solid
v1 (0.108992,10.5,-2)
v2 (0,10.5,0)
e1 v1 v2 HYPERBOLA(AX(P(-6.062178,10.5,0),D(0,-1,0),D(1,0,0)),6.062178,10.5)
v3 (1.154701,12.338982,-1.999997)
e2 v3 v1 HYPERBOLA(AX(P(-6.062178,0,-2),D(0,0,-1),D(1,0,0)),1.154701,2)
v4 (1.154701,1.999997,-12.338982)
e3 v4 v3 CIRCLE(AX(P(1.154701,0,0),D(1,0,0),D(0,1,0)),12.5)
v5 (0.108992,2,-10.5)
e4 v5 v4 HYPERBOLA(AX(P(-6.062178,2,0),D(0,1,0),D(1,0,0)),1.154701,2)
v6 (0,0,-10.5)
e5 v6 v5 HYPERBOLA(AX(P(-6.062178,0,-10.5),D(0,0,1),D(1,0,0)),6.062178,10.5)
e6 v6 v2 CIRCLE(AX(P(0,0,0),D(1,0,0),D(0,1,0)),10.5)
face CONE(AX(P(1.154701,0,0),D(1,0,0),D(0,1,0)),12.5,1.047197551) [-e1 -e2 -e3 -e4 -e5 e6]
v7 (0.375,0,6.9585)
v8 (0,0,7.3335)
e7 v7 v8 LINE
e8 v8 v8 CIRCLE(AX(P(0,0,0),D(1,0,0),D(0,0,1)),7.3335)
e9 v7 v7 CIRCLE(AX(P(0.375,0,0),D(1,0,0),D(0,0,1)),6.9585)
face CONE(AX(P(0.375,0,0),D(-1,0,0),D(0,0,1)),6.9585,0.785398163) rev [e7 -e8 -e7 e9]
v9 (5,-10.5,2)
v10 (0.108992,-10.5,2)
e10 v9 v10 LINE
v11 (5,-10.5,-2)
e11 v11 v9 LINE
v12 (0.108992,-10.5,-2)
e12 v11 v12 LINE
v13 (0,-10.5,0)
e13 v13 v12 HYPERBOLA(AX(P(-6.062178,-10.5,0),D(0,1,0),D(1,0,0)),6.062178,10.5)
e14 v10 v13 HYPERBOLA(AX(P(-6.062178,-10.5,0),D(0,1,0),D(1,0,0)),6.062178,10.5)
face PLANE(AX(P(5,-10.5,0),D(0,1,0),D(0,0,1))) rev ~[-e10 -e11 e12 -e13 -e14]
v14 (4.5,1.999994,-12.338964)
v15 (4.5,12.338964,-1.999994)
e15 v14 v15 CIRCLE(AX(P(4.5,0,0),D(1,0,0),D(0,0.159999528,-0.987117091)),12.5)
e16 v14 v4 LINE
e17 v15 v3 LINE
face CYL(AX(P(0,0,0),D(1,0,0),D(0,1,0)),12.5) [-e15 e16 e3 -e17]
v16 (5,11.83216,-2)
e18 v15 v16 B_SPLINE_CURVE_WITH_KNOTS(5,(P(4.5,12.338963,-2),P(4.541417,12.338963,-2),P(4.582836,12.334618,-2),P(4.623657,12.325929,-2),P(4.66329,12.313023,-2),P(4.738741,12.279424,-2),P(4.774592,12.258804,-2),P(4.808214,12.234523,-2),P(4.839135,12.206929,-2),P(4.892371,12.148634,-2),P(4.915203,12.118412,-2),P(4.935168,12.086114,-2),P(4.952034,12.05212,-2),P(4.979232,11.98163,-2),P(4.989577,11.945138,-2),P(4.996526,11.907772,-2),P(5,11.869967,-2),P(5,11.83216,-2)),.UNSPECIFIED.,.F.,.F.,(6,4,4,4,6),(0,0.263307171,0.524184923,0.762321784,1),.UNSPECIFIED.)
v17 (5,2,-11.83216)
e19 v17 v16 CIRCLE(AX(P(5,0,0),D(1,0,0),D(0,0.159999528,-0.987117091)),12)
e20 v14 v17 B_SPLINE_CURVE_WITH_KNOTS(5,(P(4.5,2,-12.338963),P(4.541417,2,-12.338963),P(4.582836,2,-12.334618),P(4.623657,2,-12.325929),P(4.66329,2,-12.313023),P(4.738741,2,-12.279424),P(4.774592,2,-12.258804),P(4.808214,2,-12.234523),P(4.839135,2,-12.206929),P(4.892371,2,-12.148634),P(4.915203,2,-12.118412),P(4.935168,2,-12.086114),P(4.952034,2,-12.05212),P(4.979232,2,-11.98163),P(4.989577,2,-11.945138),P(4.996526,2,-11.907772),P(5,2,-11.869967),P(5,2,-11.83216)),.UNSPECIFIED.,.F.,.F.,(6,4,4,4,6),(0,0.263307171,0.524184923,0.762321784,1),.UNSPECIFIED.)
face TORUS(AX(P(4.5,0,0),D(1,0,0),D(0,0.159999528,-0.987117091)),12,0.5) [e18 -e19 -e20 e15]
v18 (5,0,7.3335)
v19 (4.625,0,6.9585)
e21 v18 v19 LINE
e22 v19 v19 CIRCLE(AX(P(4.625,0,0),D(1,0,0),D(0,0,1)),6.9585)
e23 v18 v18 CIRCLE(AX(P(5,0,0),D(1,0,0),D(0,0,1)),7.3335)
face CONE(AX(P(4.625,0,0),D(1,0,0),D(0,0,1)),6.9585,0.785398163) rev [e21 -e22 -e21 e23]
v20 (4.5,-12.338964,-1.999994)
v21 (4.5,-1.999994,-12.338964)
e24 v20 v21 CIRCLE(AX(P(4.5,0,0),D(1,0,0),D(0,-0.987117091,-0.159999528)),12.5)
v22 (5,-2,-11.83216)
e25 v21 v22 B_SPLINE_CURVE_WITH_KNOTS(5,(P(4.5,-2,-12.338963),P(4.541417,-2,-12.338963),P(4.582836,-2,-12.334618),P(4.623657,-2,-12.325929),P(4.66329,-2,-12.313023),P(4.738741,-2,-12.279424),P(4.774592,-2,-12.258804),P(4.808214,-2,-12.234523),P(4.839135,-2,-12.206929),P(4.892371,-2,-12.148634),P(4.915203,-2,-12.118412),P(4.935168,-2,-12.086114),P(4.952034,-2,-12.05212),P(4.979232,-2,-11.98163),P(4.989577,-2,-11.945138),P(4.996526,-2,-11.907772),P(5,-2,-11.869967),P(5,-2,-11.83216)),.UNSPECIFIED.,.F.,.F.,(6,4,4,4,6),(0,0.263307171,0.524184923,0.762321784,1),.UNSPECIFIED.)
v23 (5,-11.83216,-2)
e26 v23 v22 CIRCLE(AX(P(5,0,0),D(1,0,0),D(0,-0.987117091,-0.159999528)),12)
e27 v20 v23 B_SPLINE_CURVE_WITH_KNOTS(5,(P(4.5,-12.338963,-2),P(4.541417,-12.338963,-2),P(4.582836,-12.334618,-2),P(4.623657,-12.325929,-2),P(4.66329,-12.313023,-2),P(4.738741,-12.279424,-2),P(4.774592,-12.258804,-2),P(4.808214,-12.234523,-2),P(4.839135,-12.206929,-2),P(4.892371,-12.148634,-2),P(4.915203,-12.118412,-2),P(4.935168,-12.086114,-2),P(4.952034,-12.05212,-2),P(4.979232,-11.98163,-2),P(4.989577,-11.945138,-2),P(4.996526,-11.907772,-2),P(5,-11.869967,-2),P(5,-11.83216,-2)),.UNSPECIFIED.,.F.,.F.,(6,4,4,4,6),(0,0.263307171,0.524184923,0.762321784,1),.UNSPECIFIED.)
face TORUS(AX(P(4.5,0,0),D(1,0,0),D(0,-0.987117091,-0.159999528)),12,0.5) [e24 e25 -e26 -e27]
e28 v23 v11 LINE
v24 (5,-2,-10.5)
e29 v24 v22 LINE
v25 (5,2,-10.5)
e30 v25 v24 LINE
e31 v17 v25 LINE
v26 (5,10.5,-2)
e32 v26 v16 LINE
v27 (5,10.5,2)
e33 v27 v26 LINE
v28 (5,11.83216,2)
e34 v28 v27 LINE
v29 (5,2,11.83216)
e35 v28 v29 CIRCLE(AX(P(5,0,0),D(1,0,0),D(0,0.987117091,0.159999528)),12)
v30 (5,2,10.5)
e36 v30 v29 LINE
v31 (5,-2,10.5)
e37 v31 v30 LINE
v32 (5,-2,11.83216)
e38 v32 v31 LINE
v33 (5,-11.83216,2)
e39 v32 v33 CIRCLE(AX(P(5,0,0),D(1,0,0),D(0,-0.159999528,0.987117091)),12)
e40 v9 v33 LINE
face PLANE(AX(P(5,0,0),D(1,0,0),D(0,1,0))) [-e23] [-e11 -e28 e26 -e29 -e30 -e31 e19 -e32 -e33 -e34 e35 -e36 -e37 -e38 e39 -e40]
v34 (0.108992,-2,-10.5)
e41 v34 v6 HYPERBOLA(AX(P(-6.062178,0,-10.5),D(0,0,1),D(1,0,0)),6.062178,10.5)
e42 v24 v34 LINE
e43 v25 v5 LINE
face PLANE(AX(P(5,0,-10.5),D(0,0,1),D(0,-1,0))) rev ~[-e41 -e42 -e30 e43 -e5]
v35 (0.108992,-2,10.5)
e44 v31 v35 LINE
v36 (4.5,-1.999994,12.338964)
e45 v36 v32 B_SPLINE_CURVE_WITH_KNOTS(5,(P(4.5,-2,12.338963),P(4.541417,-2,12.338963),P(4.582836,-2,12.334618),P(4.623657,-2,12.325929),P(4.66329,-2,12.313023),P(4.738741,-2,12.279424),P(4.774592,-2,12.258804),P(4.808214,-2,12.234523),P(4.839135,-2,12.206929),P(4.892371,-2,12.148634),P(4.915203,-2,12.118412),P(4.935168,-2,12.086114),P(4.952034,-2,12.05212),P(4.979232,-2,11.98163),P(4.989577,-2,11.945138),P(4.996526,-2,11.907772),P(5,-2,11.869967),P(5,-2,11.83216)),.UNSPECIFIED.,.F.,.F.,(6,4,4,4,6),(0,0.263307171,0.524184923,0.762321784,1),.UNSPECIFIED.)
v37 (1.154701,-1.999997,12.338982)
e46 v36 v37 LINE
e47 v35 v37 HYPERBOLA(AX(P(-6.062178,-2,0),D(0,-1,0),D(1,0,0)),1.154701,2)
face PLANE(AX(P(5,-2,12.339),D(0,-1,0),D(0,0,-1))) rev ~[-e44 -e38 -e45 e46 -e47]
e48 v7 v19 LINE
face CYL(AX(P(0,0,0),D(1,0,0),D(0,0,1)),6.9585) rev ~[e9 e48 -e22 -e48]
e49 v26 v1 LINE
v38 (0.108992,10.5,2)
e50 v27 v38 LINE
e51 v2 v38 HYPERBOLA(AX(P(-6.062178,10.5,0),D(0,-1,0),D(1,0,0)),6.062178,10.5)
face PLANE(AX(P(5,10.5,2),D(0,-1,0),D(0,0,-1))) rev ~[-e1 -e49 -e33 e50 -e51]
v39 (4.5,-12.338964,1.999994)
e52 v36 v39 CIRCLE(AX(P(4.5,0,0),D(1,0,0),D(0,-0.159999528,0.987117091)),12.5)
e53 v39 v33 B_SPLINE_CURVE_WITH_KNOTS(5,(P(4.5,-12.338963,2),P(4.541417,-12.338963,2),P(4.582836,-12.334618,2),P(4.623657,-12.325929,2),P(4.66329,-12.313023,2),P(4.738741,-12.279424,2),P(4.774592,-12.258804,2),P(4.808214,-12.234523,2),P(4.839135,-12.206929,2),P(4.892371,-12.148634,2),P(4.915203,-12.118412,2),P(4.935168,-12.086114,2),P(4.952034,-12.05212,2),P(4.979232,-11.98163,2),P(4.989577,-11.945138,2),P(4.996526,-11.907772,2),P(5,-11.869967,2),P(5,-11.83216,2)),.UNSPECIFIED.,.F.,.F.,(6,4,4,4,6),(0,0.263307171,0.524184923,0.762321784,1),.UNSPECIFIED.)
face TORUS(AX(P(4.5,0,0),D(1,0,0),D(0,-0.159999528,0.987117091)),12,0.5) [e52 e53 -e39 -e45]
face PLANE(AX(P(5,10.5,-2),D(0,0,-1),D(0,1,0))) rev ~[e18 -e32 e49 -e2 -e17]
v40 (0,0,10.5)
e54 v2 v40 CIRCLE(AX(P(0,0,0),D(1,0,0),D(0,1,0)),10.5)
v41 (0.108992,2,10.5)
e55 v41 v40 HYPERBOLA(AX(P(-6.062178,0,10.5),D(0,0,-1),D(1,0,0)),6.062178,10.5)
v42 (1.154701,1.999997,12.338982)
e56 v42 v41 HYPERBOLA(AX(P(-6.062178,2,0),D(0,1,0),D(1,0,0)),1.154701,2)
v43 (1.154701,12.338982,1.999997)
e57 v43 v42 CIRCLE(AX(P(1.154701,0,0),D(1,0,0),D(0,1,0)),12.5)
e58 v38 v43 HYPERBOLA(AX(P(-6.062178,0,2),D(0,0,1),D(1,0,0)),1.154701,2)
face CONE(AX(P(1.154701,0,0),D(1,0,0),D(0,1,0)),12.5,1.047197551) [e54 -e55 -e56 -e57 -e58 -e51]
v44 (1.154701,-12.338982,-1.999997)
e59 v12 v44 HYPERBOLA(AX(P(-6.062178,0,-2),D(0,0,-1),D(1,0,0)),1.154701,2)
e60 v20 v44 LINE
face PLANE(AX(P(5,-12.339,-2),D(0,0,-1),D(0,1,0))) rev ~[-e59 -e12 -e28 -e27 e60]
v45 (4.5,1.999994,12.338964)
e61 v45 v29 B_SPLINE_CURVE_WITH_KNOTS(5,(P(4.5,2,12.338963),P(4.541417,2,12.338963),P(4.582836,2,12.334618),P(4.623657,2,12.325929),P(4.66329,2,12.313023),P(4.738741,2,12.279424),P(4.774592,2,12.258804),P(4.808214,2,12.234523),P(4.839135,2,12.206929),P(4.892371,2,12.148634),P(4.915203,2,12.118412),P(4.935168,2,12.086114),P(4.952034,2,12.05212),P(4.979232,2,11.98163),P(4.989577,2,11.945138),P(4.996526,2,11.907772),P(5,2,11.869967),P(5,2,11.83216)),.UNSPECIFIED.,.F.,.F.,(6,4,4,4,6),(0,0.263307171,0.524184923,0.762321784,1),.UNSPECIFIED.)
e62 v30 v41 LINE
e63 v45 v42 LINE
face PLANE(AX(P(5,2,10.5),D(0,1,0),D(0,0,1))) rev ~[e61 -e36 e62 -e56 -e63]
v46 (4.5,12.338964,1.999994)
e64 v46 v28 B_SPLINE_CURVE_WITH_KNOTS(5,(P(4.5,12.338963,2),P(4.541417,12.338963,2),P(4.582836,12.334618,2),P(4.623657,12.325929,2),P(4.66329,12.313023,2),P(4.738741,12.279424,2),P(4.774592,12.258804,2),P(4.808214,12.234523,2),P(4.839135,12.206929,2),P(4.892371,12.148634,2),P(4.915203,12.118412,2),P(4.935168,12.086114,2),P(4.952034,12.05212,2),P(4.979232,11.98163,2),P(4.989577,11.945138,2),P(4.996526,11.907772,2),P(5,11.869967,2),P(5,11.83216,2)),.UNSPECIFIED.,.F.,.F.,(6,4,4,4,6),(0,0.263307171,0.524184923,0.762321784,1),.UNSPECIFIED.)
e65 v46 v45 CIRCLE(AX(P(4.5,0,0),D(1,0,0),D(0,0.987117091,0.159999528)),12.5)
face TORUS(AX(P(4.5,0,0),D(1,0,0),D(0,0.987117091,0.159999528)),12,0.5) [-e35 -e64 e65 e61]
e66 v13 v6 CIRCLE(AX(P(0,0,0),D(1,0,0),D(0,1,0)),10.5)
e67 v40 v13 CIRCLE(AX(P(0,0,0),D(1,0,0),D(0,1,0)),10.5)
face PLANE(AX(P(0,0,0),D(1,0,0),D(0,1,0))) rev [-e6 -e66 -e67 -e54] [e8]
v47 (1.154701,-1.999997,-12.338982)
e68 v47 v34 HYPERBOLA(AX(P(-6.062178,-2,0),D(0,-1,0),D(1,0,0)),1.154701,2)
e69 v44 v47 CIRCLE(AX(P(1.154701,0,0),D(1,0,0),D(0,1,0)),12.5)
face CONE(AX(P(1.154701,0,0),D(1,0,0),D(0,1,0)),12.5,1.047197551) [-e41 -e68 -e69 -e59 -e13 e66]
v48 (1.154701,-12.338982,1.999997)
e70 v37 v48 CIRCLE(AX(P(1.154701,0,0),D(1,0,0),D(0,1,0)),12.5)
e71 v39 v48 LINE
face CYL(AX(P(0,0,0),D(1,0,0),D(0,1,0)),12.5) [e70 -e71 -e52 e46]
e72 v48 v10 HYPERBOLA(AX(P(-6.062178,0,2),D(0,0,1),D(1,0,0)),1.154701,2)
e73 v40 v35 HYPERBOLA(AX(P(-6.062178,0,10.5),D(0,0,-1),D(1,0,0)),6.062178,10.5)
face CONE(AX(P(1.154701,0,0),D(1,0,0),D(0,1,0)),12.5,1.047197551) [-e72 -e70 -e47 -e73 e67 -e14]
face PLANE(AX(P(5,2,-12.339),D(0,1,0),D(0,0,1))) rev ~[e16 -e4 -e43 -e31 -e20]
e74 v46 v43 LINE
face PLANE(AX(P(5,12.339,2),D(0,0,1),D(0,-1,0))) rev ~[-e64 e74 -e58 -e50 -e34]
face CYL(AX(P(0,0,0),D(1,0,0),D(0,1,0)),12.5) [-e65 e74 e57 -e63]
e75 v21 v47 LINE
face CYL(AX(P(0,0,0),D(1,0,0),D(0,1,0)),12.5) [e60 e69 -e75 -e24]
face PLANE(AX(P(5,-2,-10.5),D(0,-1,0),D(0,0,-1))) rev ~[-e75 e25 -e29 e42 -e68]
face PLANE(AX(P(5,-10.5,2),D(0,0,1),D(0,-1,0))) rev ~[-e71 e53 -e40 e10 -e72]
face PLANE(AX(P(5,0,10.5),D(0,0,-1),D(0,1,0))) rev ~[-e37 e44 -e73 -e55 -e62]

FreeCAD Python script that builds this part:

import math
import FreeCAD as App
import Part
import Sketcher

V = App.Vector


def edges_at(feature, points):
    """Names of the edges that pass closest to the given points."""
    edges = feature.Shape.Edges
    near = lambda p: min(range(len(edges)), key=lambda i: edges[i].distToShape(Part.Vertex(*p))[0])
    return sorted({f"Edge{near(p) + 1}" for p in points})


def add_polygon(sketch, points):
    """Adds a closed chain of lines whose ends are joined by coincident constraints."""
    first, n = sketch.GeometryCount, len(points)
    for a, b in zip(points, points[1:] + points[:1]):
        sketch.addGeometry(Part.LineSegment(App.Vector(*a, 0), App.Vector(*b, 0)), False)
    for i in range(n):
        sketch.addConstraint(Sketcher.Constraint("Coincident", first + i, 2, first + (i + 1) % n, 1))

doc = App.newDocument("Part")
params = doc.addObject("Spreadsheet::Sheet", "Params")
for row, (alias, value) in enumerate([
    ("sketch1_width", "5 mm"),
    ("sketch1_height", "12.5 mm"),
    ("revolution_angle", "360 deg"),
    ("hole_diameter", "13.917 mm"),
    ("chamfer_size", "2 mm"),
    ("sketch3_radius", "12.5 mm"),
    ("fillet_radius", "0.5 mm"),
    ("chamfer2_size", "0.375 mm"),
    ("chamfer3_size", "0.375 mm"),
], start=1):
    params.set(f"A{row}", alias)
    params.set(f"B{row}", "=" + value)
    params.setAlias(f"B{row}", alias)

body = doc.addObject("PartDesign::Body", "Body")

# Sketch on XY plane
sketch1 = body.newObject("Sketcher::SketchObject", "Sketch")
sketch1.AttachmentSupport = (doc.getObject("XY_Plane"), [""])
sketch1.MapMode = "FlatFace"
add_polygon(sketch1, [(0, 12.5), (0, 0), (5, 0), (5, 12.5)])  # lines 0-3
sketch1.addConstraint([
    Sketcher.Constraint("Vertical", 0),
    Sketcher.Constraint("Horizontal", 1),
    Sketcher.Constraint("Vertical", 2),
    Sketcher.Constraint("Horizontal", 3),
    Sketcher.Constraint("Coincident", 0, 2, -1, 1),
    Sketcher.Constraint("DistanceX", 1, 1, 1, 2, 5.0),
    Sketcher.Constraint("DistanceY", 0, 2, 0, 1, 12.5),
])
sketch1.setExpression("Constraints[9]", "Params.sketch1_width")
sketch1.setExpression("Constraints[10]", "Params.sketch1_height")
revolution = body.newObject("PartDesign::Revolution", "Revolution")
revolution.Profile = sketch1
revolution.ReferenceAxis = (sketch1, ["H_Axis"])
revolution.setExpression("Angle", "Params.revolution_angle")

# Sketch on YZ plane
sketch2 = body.newObject("Sketcher::SketchObject", "Sketch001")
sketch2.AttachmentSupport = (doc.getObject("YZ_Plane"), [""])
sketch2.MapMode = "FlatFace"
sketch2.addGeometry(Part.Circle(V(0, 0, 0), V(0, 0, 1), 6.9585), False)
sketch2.addConstraint([
    Sketcher.Constraint("Coincident", 0, 3, -1, 1),
    Sketcher.Constraint("Diameter", 0, 13.917),
])
doc.recompute()
hole = body.newObject("PartDesign::Hole", "Hole")
hole.Profile = sketch2
hole.ThreadType = "None"
hole.setExpression("Diameter", "Params.hole_diameter")
hole.DepthType = "ThroughAll"
hole.Reversed = True
doc.recompute()

chamfer = body.newObject("PartDesign::Chamfer", "Chamfer")
chamfer.Base = (hole, edges_at(hole, [(0, -12.5, 0)]))
chamfer.ChamferType = "Distance and Angle"
chamfer.setExpression("Size", "Params.chamfer_size")
chamfer.Angle = 30

# Sketch on YZ plane
sketch3 = body.newObject("Sketcher::SketchObject", "Sketch002")
sketch3.AttachmentSupport = (doc.getObject("YZ_Plane"), [""])
sketch3.MapMode = "FlatFace"
sketch3.AttachmentOffset = App.Placement(V(0, 0, 5), App.Rotation())
sketch3.addGeometry([
    Part.LineSegment(V(10.5, -2, 0), V(12.339, -2, 0)),
    Part.ArcOfCircle(Part.Circle(V(0, 0, 0), V(0, 0, 1), 12.5), math.radians(-9.206869), math.radians(9.206869)),
    Part.LineSegment(V(12.339, 2, 0), V(10.5, 2, 0)),
    Part.LineSegment(V(10.5, 2, 0), V(10.5, -2, 0)),
], False)
sketch3.addConstraint([
    Sketcher.Constraint("Coincident", 0, 2, 1, 1),
    Sketcher.Constraint("Coincident", 1, 2, 2, 1),
    Sketcher.Constraint("Coincident", 2, 2, 3, 1),
    Sketcher.Constraint("Coincident", 3, 2, 0, 1),
    Sketcher.Constraint("Horizontal", 0),
    Sketcher.Constraint("Horizontal", 2),
    Sketcher.Constraint("Vertical", 3),
    Sketcher.Constraint("Coincident", 1, 3, -1, 1),
    Sketcher.Constraint("Vertical", 0, 2, 1, 2),
    Sketcher.Constraint("DistanceY", 0, 2, -1, 1, 2.0),
    Sketcher.Constraint("DistanceX", -1, 1, 2, 2, 10.5),
    Sketcher.Constraint("Radius", 1, 12.5),
])
sketch3.setExpression("Constraints[11]", "Params.sketch3_radius")
pocket1 = body.newObject("PartDesign::Pocket", "Pocket")
pocket1.Profile = sketch3
pocket1.Type = "ThroughAll"
doc.recompute()

polarpattern = body.newObject("PartDesign::PolarPattern", "PolarPattern")
polarpattern.Originals = [pocket1]
polarpattern.Axis = (doc.getObject("X_Axis"), [""])
polarpattern.Angle = 360
polarpattern.Occurrences = 4
body.Tip = polarpattern
doc.recompute()

fillet = body.newObject("PartDesign::Fillet", "Fillet")
fillet.Base = (polarpattern, edges_at(polarpattern, [
    (5, 8.839, 8.839),
    (5, 8.839, -8.839),
    (5, -8.839, -8.839),
    (5, -8.839, 8.839),
]))
fillet.setExpression("Radius", "Params.fillet_radius")
doc.recompute()

chamfer2 = body.newObject("PartDesign::Chamfer", "Chamfer001")
chamfer2.Base = (fillet, edges_at(fillet, [(5, 0, -6.958)]))
chamfer2.setExpression("Size", "Params.chamfer2_size")
doc.recompute()

chamfer3 = body.newObject("PartDesign::Chamfer", "Chamfer002")
chamfer3.Base = (chamfer2, edges_at(chamfer2, [(0, 0, -6.958)]))
chamfer3.setExpression("Size", "Params.chamfer3_size")

doc.recompute()
